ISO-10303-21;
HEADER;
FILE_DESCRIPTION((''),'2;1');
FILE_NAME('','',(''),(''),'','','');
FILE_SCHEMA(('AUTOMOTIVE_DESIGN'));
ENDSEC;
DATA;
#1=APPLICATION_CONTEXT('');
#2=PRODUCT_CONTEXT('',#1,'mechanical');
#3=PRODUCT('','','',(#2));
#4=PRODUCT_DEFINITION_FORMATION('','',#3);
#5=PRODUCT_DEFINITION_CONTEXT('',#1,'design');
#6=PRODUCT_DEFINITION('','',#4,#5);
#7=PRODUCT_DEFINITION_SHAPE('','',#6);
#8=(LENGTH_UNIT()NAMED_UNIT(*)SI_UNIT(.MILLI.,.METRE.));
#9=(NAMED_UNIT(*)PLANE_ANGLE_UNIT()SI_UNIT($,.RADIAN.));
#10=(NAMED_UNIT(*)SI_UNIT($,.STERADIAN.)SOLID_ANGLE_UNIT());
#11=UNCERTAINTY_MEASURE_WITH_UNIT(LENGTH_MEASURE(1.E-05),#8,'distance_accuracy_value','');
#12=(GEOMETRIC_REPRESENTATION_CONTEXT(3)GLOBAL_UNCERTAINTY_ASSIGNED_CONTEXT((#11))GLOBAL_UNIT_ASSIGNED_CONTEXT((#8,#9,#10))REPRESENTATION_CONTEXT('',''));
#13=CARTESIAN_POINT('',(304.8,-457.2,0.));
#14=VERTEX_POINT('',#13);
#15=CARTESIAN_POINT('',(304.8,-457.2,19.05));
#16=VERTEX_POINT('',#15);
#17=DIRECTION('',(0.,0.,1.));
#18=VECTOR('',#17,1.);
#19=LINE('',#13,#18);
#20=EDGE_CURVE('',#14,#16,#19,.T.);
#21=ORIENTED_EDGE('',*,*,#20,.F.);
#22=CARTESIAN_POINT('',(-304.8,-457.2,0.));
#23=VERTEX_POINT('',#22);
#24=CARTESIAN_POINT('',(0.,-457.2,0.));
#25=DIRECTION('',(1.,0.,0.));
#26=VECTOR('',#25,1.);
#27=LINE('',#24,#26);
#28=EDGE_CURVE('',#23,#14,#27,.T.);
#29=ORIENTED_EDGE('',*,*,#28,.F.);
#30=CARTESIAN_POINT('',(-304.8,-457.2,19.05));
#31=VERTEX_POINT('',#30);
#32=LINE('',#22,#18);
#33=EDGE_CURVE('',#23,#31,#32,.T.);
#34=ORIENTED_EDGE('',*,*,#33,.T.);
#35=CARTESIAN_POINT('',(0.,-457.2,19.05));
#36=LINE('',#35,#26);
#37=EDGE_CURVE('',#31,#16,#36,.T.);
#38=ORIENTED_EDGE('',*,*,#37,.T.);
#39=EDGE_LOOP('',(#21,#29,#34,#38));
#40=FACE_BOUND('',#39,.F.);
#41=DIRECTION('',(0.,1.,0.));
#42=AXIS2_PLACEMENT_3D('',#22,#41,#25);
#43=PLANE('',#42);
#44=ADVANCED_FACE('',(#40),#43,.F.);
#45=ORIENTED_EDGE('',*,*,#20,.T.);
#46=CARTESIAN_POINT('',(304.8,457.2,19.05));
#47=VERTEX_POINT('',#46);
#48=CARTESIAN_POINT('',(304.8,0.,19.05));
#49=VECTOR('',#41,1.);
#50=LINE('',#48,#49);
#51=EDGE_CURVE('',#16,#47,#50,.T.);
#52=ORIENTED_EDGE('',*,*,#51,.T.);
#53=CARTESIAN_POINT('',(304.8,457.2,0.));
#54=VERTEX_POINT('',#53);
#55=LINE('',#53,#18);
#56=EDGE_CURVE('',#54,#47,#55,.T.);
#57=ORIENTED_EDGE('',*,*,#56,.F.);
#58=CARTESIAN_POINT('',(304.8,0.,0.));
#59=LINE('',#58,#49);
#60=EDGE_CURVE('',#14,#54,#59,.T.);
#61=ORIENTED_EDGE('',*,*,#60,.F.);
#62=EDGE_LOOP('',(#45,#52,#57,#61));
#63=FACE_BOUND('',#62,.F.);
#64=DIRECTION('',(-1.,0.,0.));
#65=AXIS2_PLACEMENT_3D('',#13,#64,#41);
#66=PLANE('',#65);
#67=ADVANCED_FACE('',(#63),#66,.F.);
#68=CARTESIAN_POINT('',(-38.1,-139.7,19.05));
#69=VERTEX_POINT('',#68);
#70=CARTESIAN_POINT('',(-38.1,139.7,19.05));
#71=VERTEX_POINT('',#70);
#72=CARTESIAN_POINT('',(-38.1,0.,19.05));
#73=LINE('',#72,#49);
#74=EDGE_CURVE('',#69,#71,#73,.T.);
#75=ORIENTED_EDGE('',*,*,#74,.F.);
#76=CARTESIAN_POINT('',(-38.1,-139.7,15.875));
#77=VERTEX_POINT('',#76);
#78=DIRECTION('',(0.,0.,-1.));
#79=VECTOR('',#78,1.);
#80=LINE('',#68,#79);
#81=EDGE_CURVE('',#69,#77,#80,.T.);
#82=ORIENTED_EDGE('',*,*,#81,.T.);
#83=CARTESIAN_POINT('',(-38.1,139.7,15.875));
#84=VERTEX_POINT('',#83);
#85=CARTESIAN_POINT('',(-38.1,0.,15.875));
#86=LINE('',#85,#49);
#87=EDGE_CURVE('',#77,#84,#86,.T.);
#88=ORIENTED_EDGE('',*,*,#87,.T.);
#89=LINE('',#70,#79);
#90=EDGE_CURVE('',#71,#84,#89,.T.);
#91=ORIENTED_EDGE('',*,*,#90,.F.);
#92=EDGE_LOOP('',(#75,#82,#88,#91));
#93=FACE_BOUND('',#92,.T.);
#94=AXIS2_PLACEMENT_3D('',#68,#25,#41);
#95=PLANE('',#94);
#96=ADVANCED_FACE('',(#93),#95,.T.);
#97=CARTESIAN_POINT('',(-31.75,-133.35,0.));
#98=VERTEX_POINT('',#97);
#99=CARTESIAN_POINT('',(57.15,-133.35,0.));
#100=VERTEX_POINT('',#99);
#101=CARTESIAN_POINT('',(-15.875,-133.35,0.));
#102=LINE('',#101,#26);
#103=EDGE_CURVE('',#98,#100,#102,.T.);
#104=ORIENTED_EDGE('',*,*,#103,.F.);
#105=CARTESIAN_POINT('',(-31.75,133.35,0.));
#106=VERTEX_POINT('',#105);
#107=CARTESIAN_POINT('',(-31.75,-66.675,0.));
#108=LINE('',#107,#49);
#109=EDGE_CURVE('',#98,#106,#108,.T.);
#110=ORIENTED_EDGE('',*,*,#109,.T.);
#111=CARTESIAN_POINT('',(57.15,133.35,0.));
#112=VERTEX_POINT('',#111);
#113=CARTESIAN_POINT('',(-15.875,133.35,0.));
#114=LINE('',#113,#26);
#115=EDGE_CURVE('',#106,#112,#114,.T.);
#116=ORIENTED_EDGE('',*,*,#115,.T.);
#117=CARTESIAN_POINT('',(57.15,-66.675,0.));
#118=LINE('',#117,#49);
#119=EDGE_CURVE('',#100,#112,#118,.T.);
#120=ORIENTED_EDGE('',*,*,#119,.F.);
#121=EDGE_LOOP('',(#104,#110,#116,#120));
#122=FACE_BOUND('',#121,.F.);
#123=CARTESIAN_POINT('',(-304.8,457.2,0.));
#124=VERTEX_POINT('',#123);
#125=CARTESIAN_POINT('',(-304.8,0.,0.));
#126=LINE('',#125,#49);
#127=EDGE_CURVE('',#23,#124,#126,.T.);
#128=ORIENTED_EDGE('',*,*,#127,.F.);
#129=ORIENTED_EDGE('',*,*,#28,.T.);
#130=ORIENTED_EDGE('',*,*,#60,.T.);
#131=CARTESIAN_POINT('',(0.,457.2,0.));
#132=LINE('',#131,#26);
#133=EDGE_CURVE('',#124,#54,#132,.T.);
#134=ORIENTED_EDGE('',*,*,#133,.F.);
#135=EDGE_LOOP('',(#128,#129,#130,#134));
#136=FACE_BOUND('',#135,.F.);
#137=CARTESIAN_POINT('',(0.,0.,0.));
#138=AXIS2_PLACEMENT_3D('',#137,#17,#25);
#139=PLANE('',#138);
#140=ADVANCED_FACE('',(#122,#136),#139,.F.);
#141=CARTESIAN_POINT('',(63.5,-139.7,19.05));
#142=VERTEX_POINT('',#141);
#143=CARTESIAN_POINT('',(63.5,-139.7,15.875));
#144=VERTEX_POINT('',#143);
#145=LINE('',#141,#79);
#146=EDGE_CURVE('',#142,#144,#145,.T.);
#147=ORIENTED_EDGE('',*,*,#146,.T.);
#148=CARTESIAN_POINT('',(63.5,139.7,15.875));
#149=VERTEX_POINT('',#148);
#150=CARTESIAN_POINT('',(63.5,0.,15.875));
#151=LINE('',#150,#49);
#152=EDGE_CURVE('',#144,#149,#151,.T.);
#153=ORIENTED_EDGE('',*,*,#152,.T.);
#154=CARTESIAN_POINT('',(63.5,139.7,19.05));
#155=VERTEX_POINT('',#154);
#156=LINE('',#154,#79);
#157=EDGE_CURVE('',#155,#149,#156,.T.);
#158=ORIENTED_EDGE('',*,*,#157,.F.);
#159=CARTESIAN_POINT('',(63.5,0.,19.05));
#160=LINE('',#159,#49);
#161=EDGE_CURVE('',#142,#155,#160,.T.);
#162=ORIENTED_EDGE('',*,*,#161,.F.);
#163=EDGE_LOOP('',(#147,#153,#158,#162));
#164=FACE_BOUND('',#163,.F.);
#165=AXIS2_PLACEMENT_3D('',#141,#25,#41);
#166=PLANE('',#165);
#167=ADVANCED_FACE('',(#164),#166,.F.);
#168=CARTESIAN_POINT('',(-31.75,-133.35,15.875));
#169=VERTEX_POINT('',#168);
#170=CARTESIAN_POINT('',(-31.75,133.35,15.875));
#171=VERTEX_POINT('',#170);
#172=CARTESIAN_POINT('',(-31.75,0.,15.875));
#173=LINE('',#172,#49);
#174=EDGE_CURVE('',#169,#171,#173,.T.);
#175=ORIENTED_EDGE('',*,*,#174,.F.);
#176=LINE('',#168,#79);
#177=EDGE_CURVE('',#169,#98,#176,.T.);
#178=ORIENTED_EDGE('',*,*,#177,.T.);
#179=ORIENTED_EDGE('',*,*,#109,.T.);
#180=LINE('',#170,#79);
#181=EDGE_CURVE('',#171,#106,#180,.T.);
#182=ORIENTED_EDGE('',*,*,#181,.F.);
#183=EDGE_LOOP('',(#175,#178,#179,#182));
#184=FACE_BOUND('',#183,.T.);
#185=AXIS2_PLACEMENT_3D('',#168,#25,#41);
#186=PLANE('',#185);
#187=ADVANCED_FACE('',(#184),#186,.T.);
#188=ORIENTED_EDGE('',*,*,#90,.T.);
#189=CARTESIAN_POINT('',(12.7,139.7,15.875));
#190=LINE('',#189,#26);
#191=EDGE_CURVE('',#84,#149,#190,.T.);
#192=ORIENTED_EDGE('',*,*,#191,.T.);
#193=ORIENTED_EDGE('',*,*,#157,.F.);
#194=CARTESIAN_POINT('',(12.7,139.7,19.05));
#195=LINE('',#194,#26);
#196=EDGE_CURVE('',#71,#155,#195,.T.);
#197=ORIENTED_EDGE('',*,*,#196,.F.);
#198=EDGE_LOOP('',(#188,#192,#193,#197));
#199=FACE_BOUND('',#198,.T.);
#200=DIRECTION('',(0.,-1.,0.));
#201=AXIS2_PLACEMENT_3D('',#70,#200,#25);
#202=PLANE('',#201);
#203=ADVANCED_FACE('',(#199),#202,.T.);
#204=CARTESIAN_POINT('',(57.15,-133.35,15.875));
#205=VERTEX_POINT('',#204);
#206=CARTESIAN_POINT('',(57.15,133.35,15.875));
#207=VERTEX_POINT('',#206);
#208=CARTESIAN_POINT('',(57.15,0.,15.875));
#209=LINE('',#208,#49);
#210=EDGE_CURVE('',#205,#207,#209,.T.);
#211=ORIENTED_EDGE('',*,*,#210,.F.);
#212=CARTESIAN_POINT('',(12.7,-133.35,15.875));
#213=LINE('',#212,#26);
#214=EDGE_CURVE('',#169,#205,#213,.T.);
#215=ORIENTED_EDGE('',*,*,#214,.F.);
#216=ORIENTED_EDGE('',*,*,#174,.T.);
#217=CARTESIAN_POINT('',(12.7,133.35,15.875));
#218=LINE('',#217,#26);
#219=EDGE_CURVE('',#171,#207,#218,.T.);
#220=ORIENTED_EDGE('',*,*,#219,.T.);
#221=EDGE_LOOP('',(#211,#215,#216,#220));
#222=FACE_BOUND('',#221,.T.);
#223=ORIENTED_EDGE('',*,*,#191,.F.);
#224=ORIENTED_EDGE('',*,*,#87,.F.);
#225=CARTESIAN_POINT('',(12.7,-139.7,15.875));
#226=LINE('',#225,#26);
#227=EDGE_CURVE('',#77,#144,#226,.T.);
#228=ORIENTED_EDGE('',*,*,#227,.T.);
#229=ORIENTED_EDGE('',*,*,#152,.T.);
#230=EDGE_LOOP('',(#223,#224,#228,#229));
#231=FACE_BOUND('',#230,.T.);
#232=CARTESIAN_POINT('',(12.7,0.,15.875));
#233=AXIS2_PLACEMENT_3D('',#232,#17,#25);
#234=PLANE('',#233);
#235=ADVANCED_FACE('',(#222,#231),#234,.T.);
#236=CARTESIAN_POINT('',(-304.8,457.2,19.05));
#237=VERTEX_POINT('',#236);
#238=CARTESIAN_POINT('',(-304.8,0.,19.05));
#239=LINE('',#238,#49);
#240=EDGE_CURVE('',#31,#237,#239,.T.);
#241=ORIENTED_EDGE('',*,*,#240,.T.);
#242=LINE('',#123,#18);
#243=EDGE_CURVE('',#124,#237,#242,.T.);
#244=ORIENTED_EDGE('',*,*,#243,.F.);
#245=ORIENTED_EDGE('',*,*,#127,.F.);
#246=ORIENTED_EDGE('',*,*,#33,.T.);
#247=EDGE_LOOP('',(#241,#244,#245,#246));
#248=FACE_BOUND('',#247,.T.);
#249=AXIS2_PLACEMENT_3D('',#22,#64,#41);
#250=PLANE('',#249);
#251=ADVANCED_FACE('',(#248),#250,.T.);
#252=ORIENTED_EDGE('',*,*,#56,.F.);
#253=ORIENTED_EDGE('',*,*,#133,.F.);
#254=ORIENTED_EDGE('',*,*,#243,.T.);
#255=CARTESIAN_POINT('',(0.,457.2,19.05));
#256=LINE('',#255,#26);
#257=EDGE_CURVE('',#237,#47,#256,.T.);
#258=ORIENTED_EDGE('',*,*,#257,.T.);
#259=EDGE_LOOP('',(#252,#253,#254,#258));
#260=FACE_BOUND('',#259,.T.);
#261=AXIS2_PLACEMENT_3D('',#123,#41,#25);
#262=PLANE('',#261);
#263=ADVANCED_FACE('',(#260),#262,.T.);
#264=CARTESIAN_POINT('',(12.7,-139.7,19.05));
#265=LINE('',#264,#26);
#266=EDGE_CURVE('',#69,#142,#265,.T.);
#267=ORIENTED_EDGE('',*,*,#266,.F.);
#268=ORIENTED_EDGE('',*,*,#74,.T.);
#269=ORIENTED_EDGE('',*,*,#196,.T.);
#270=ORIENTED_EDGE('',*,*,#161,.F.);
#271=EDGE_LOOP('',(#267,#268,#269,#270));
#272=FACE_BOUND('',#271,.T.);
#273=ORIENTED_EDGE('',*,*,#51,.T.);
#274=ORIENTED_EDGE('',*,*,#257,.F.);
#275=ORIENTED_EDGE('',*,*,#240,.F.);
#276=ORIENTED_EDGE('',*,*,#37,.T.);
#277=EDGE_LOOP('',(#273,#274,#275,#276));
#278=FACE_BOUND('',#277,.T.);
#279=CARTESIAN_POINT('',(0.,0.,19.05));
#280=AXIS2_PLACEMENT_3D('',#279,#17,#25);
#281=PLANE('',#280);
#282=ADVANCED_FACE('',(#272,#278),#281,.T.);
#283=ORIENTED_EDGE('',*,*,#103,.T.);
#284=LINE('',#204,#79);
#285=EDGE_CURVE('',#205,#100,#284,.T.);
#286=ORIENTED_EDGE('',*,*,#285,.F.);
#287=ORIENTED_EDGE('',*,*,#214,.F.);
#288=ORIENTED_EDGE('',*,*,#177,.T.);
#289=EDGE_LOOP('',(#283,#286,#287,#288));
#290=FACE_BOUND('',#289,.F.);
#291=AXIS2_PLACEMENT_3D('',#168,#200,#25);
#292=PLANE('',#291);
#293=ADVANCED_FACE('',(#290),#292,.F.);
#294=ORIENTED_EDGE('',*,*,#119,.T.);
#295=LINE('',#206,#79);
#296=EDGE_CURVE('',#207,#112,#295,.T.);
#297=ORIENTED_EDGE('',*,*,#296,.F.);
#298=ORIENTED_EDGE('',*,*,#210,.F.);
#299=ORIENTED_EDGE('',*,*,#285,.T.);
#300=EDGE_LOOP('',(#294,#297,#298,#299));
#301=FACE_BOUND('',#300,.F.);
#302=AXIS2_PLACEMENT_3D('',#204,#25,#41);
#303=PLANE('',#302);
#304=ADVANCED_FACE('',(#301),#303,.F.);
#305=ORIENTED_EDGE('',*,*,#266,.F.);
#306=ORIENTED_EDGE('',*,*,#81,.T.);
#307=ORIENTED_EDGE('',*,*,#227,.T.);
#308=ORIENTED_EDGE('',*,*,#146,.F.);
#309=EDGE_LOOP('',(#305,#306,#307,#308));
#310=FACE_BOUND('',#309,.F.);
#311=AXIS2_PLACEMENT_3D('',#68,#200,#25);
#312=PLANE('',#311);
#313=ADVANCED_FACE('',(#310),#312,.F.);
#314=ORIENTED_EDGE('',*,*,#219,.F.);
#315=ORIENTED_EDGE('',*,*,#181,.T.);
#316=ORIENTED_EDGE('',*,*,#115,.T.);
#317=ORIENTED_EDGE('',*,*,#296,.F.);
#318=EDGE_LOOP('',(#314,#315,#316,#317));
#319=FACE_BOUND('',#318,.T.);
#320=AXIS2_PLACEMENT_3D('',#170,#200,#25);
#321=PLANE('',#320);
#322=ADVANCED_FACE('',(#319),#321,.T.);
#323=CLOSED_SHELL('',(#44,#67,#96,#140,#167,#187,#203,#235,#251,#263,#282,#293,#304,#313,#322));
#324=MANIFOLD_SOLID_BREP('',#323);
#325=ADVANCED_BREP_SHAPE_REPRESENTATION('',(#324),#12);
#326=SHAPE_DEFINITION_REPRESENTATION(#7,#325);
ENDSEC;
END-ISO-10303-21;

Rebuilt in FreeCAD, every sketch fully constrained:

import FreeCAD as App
import Part
import Sketcher
from FreeCAD import Vector
Q = App.Units.Quantity

doc = App.newDocument("Part")
body = doc.addObject("PartDesign::Body", "Body")

sketch1 = body.newObject("Sketcher::SketchObject", "Sketch")
sketch1.AttachmentSupport = (doc.getObject("XY_Plane"), [""])
sketch1.MapMode = "FlatFace"
sketch1.addGeometry([
    Part.LineSegment(Vector(-305, 457, 0), Vector(-305, -457, 0)),
    Part.LineSegment(Vector(-305, -457, 0), Vector(305, -457, 0)),
    Part.LineSegment(Vector(305, -457, 0), Vector(305, 457, 0)),
    Part.LineSegment(Vector(305, 457, 0), Vector(-305, 457, 0)),
], False)
sketch1.addConstraint([
    Sketcher.Constraint("Coincident", 0, 2, 1, 1),
    Sketcher.Constraint("Coincident", 1, 2, 2, 1),
    Sketcher.Constraint("Coincident", 2, 2, 3, 1),
    Sketcher.Constraint("Coincident", 3, 2, 0, 1),
    Sketcher.Constraint("Vertical", 0),
    Sketcher.Constraint("Horizontal", 1),
    Sketcher.Constraint("Vertical", 2),
    Sketcher.Constraint("Horizontal", 3),
    Sketcher.Constraint("Symmetric", 0, 2, 2, 2, -1, 1),
    Sketcher.Constraint("DistanceX", 1, 1, 1, 2, Q("24 in")),
    Sketcher.Constraint("DistanceY", 0, 2, 0, 1, Q("36 in")),
])
pad1 = body.newObject("PartDesign::Pad", "Pad")
pad1.Profile = sketch1
pad1.Length = Q("0.75 in")

sketch2 = body.newObject("Sketcher::SketchObject", "Sketch001")
sketch2.AttachmentSupport = (doc.getObject("XY_Plane"), [""])
sketch2.MapMode = "FlatFace"
sketch2.AttachmentOffset = App.Placement(Vector(0, 0, 0.75 * 25.4), App.Rotation())
sketch2.addGeometry([
    Part.LineSegment(Vector(-38, 140, 0), Vector(-38, -140, 0)),
    Part.LineSegment(Vector(-38, -140, 0), Vector(64, -140, 0)),
    Part.LineSegment(Vector(64, -140, 0), Vector(64, 140, 0)),
    Part.LineSegment(Vector(64, 140, 0), Vector(-38, 140, 0)),
], False)
sketch2.addConstraint([
    Sketcher.Constraint("Coincident", 0, 2, 1, 1),
    Sketcher.Constraint("Coincident", 1, 2, 2, 1),
    Sketcher.Constraint("Coincident", 2, 2, 3, 1),
    Sketcher.Constraint("Coincident", 3, 2, 0, 1),
    Sketcher.Constraint("Vertical", 0),
    Sketcher.Constraint("Horizontal", 1),
    Sketcher.Constraint("Vertical", 2),
    Sketcher.Constraint("Horizontal", 3),
    Sketcher.Constraint("DistanceX", 1, 1, 1, 2, Q("4 in")),
    Sketcher.Constraint("DistanceY", 0, 2, 0, 1, Q("11 in")),
    Sketcher.Constraint("DistanceX", 0, 2, -1, 1, Q("1.5 in")),
    Sketcher.Constraint("DistanceY", 0, 2, -1, 1, Q("5.5 in")),
])
pocket1 = body.newObject("PartDesign::Pocket", "Pocket")
pocket1.Profile = sketch2
pocket1.Length = Q("0.125 in")

sketch3 = body.newObject("Sketcher::SketchObject", "Sketch002")
sketch3.AttachmentSupport = (doc.getObject("XY_Plane"), [""])
sketch3.MapMode = "FlatFace"
sketch3.AttachmentOffset = App.Placement(Vector(0, 0, 0.625 * 25.4), App.Rotation())
sketch3.addGeometry([
    Part.LineSegment(Vector(-32, 133, 0), Vector(-32, -133, 0)),
    Part.LineSegment(Vector(-32, -133, 0), Vector(57, -133, 0)),
    Part.LineSegment(Vector(57, -133, 0), Vector(57, 133, 0)),
    Part.LineSegment(Vector(57, 133, 0), Vector(-32, 133, 0)),
], False)
sketch3.addConstraint([
    Sketcher.Constraint("Coincident", 0, 2, 1, 1),
    Sketcher.Constraint("Coincident", 1, 2, 2, 1),
    Sketcher.Constraint("Coincident", 2, 2, 3, 1),
    Sketcher.Constraint("Coincident", 3, 2, 0, 1),
    Sketcher.Constraint("Vertical", 0),
    Sketcher.Constraint("Horizontal", 1),
    Sketcher.Constraint("Vertical", 2),
    Sketcher.Constraint("Horizontal", 3),
    Sketcher.Constraint("DistanceX", 1, 1, 1, 2, Q("3.5 in")),
    Sketcher.Constraint("DistanceY", 0, 2, 0, 1, Q("10.5 in")),
    Sketcher.Constraint("DistanceX", 0, 2, -1, 1, Q("1.25 in")),
    Sketcher.Constraint("DistanceY", 0, 2, -1, 1, Q("5.25 in")),
])
pocket2 = body.newObject("PartDesign::Pocket", "Pocket001")
pocket2.Profile = sketch3
pocket2.Length = Q("1 in")

doc.recompute()
